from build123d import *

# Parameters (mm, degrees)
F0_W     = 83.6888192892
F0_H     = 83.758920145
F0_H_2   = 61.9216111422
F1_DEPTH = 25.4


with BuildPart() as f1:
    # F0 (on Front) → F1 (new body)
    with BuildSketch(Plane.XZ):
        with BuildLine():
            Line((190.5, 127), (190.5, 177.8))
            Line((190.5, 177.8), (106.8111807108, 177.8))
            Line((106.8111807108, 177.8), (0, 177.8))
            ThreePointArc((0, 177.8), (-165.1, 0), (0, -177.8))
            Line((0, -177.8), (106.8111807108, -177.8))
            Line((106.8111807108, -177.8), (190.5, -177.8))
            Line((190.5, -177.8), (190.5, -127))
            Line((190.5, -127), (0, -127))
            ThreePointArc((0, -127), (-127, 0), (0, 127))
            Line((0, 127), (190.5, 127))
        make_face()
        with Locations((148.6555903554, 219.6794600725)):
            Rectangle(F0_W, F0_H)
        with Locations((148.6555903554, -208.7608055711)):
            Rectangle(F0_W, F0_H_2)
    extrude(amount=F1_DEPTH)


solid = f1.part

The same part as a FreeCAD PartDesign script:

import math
import FreeCAD as App
import Part
import Sketcher

V = App.Vector
Q = App.Units.Quantity

doc = App.newDocument("Part")
body = doc.addObject("PartDesign::Body", "Body")

# Sketch on XZ plane
sketch1 = body.newObject("Sketcher::SketchObject", "Sketch")
sketch1.AttachmentSupport = (doc.getObject("XZ_Plane"), [""])
sketch1.MapMode = "FlatFace"
sketch1.addGeometry([
    Part.LineSegment(V(190.5, 127, 0), V(190.5, 261.55892, 0)),  # 0
    Part.LineSegment(V(190.5, 261.55892, 0), V(106.811181, 261.55892, 0)),  # 1
    Part.LineSegment(V(106.811181, 261.55892, 0), V(106.811181, 177.8, 0)),  # 2
    Part.LineSegment(V(106.811181, 177.8, 0), V(0, 177.8, 0)),  # 3
    Part.ArcOfCircle(Part.Circle(V(13.188462, 0, 0), V(0, 0, 1), 178.288462), math.radians(94.242193), math.radians(265.757807)),  # 4
    Part.LineSegment(V(0, -177.8, 0), V(106.811181, -177.8, 0)),  # 5
    Part.LineSegment(V(106.811181, -177.8, 0), V(106.811181, -239.721611, 0)),  # 6
    Part.LineSegment(V(106.811181, -239.721611, 0), V(190.5, -239.721611, 0)),  # 7
    Part.LineSegment(V(190.5, -239.721611, 0), V(190.5, -127, 0)),  # 8
    Part.LineSegment(V(190.5, -127, 0), V(0, -127, 0)),  # 9
    Part.ArcOfCircle(Part.Circle(V(0, 0, 0), V(0, 0, 1), 127), math.radians(90), math.radians(270)),  # 10
    Part.LineSegment(V(0, 127, 0), V(190.5, 127, 0)),  # 11
], False)
sketch1.addConstraint([
    Sketcher.Constraint("Coincident", 0, 2, 1, 1),
    Sketcher.Constraint("Coincident", 1, 2, 2, 1),
    Sketcher.Constraint("Coincident", 2, 2, 3, 1),
    Sketcher.Constraint("Coincident", 3, 2, 4, 1),
    Sketcher.Constraint("Coincident", 4, 2, 5, 1),
    Sketcher.Constraint("Coincident", 5, 2, 6, 1),
    Sketcher.Constraint("Coincident", 6, 2, 7, 1),
    Sketcher.Constraint("Coincident", 7, 2, 8, 1),
    Sketcher.Constraint("Coincident", 8, 2, 9, 1),
    Sketcher.Constraint("Tangent", 9, 2, 10, 2),
    Sketcher.Constraint("Tangent", 10, 1, 11, 1),
    Sketcher.Constraint("Coincident", 11, 2, 0, 1),
    Sketcher.Constraint("Vertical", 0),
    Sketcher.Constraint("Horizontal", 1),
    Sketcher.Constraint("Vertical", 2),
    Sketcher.Constraint("Horizontal", 3),
    Sketcher.Constraint("Horizontal", 5),
    Sketcher.Constraint("Vertical", 6),
    Sketcher.Constraint("Horizontal", 7),
    Sketcher.Constraint("Vertical", 8),
    Sketcher.Constraint("Horizontal", 9),
    Sketcher.Constraint("Horizontal", 11),
    Sketcher.Constraint("Coincident", 10, 3, -1, 1),
    Sketcher.Constraint("Symmetric", 3, 2, 4, 2, -1, 1),
    Sketcher.Constraint("PointOnObject", 4, 3, -1),
    Sketcher.Constraint("Vertical", 2, 2, 5, 2),
    Sketcher.Constraint("Vertical", 0, 2, 7, 2),
    Sketcher.Constraint("Radius", 10, Q("5 in")),
    Sketcher.Constraint("DistanceX", 9, 2, 9, 1, Q("7.5 in")),
    Sketcher.Constraint("DistanceY", -1, 1, 2, 2, Q("7 in")),
    Sketcher.Constraint("Radius", 4, Q("178.288462 mm")),
    Sketcher.Constraint("DistanceX", 1, 2, 1, 1, Q("83.688819 mm")),
    Sketcher.Constraint("DistanceY", 0, 1, 0, 2, Q("134.55892 mm")),
    Sketcher.Constraint("DistanceY", 6, 2, 6, 1, Q("61.921611 mm")),
])
pad1 = body.newObject("PartDesign::Pad", "Pad")
pad1.Profile = sketch1
pad1.Length = Q("1 in")

doc.recompute()
